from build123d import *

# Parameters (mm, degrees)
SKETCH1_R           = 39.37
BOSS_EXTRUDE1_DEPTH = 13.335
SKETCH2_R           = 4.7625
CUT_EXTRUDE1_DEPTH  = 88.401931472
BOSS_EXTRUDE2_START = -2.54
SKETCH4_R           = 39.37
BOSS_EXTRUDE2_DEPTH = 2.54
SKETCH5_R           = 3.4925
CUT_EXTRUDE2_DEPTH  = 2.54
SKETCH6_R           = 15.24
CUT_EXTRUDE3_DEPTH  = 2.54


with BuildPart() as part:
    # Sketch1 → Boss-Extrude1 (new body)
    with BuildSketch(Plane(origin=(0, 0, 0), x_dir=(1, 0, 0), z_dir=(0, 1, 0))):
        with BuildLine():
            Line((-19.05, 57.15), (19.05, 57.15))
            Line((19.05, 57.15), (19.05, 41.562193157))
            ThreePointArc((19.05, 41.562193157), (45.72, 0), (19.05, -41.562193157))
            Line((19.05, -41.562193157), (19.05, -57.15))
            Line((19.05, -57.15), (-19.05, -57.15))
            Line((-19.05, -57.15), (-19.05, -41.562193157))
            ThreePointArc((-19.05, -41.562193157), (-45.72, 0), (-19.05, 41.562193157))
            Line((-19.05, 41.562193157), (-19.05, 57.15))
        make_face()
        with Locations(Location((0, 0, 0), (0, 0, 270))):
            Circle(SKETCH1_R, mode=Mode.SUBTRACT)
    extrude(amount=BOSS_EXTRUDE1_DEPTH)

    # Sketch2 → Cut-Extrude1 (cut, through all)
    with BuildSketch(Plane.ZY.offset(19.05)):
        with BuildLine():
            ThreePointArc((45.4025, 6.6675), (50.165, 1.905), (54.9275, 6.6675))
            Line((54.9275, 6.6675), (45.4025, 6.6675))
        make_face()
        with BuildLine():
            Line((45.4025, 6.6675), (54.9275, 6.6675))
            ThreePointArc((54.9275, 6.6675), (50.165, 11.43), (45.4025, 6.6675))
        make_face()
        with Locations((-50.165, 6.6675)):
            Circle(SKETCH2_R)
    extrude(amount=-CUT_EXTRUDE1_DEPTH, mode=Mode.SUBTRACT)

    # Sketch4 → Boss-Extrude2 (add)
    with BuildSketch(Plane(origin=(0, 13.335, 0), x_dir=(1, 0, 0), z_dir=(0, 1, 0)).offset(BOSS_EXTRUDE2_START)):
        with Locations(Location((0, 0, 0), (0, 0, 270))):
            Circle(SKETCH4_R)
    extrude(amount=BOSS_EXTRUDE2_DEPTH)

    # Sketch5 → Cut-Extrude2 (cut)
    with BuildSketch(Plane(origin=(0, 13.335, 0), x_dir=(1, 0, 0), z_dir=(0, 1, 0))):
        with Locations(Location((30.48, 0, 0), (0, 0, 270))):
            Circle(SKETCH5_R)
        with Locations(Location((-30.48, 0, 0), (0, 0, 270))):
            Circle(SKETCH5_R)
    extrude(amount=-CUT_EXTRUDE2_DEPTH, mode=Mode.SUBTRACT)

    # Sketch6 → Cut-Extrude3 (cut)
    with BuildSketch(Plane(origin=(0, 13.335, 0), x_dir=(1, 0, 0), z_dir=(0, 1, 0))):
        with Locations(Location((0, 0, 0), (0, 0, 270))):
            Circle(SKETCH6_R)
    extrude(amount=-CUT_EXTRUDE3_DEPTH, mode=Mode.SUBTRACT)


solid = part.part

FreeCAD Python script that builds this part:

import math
import FreeCAD as App
import Part
import Sketcher

V = App.Vector
Q = App.Units.Quantity

doc = App.newDocument("Part")
params = doc.addObject("Spreadsheet::Sheet", "Params")
for row, (alias, value) in enumerate([
    ("sketch1_diameter", "3.1 in"),
    ("sketch1_radius", "1.8 in"),
    ("sketch1_width", "1.5 in"),
    ("pad1_length", "0.525 in"),
    ("sketch2_diameter", "0.375 in"),
    ("sketch3_diameter", "3.1 in"),
    ("pad2_length", "0.1 in"),
    ("sketch4_diameter", "0.275 in"),
    ("pocket2_length", "0.1 in"),
    ("sketch5_diameter", "1.2 in"),
    ("pocket3_length", "0.1 in"),
], start=1):
    params.set(f"A{row}", alias)
    params.set(f"B{row}", "=" + value)
    params.setAlias(f"B{row}", alias)

body = doc.addObject("PartDesign::Body", "Body")

sketch1 = doc.addObject("Sketcher::SketchObject", "Sketch")
body.addObject(sketch1)
sketch1.AttachmentSupport = (doc.XZ_Plane, [""])
sketch1.MapMode = "FlatFace"
sketch1.addGeometry(Part.LineSegment(V(19, -57, 0), V(-19, -57, 0)), False)
sketch1.addGeometry(Part.LineSegment(V(-19, -57, 0), V(-19, -42, 0)), False)
sketch1.addGeometry(Part.ArcOfCircle(Part.Circle(V(0, 0, 0), V(0, 0, 1), 46), math.radians(115), math.radians(245)), False)
sketch1.addGeometry(Part.LineSegment(V(-19, 42, 0), V(-19, 57, 0)), False)
sketch1.addGeometry(Part.LineSegment(V(-19, 57, 0), V(19, 57, 0)), False)
sketch1.addGeometry(Part.LineSegment(V(19, 57, 0), V(19, 42, 0)), False)
sketch1.addGeometry(Part.ArcOfCircle(Part.Circle(V(0, 0, 0), V(0, 0, 1), 46), math.radians(-65), math.radians(65)), False)
sketch1.addGeometry(Part.LineSegment(V(19, -42, 0), V(19, -57, 0)), False)
sketch1.addGeometry(Part.Circle(V(0, 0, 0), V(0, 0, 1), 39), False)
sketch1.addConstraint(Sketcher.Constraint("Coincident", 0, 2, 1, 1))
sketch1.addConstraint(Sketcher.Constraint("Coincident", 1, 2, 2, 2))
sketch1.addConstraint(Sketcher.Constraint("Coincident", 2, 1, 3, 1))
sketch1.addConstraint(Sketcher.Constraint("Coincident", 3, 2, 4, 1))
sketch1.addConstraint(Sketcher.Constraint("Coincident", 4, 2, 5, 1))
sketch1.addConstraint(Sketcher.Constraint("Coincident", 5, 2, 6, 2))
sketch1.addConstraint(Sketcher.Constraint("Coincident", 6, 1, 7, 1))
sketch1.addConstraint(Sketcher.Constraint("Coincident", 7, 2, 0, 1))
sketch1.addConstraint(Sketcher.Constraint("Horizontal", 0))
sketch1.addConstraint(Sketcher.Constraint("Vertical", 1))
sketch1.addConstraint(Sketcher.Constraint("Vertical", 3))
sketch1.addConstraint(Sketcher.Constraint("Horizontal", 4))
sketch1.addConstraint(Sketcher.Constraint("Vertical", 5))
sketch1.addConstraint(Sketcher.Constraint("Vertical", 7))
sketch1.addConstraint(Sketcher.Constraint("Coincident", 2, 3, -1, 1))
sketch1.addConstraint(Sketcher.Constraint("Coincident", 6, 3, -1, 1))
sketch1.addConstraint(Sketcher.Constraint("Coincident", 8, 3, -1, 1))
sketch1.addConstraint(Sketcher.Constraint("Equal", 2, 6))
sketch1.addConstraint(Sketcher.Constraint("Symmetric", 0, 2, 4, 2, -1, 1))
sketch1.addConstraint(Sketcher.Constraint("Horizontal", 2, 1, 5, 2))
sketch1.addConstraint(Sketcher.Constraint("Horizontal", 1, 2, 6, 1))
sketch1.addConstraint(Sketcher.Constraint("Diameter", 8, Q("3.1 in")))
sketch1.addConstraint(Sketcher.Constraint("Radius", 2, Q("1.8 in")))
sketch1.addConstraint(Sketcher.Constraint("DistanceX", 0, 2, 0, 1, Q("1.5 in")))
sketch1.addConstraint(Sketcher.Constraint("DistanceY", 0, 2, -1, 1, Q("2.25 in")))
sketch1.setExpression("Constraints[21]", "Params.sketch1_diameter")
sketch1.setExpression("Constraints[22]", "Params.sketch1_radius")
sketch1.setExpression("Constraints[23]", "Params.sketch1_width")
pad1 = doc.addObject("PartDesign::Pad", "Pad")
body.addObject(pad1)
pad1.Profile = sketch1
pad1.setExpression("Length", "Params.pad1_length")
pad1.Reversed = True

sketch2 = doc.addObject("Sketcher::SketchObject", "Sketch001")
body.addObject(sketch2)
sketch2.AttachmentSupport = (doc.YZ_Plane, [""])
sketch2.MapMode = "FlatFace"
sketch2.AttachmentOffset = App.Placement(V(0, 0, -0.75 * 25.4), App.Rotation())
sketch2.addGeometry(Part.Circle(V(6.7, 50.2, 0), V(0, 0, 1), 4.8), False)
sketch2.addGeometry(Part.Circle(V(6.7, -50.2, 0), V(0, 0, 1), 4.8), False)
sketch2.addConstraint(Sketcher.Constraint("Equal", 0, 1))
sketch2.addConstraint(Sketcher.Constraint("Symmetric", 0, 3, 1, 3, -1))
sketch2.addConstraint(Sketcher.Constraint("Diameter", 0, Q("0.375 in")))
sketch2.addConstraint(Sketcher.Constraint("DistanceY", 1, 3, 0, 3, Q("3.95 in")))
sketch2.addConstraint(Sketcher.Constraint("DistanceX", -1, 1, 0, 3, Q("0.2625 in")))
sketch2.setExpression("Constraints[2]", "Params.sketch2_diameter")
pocket1 = doc.addObject("PartDesign::Pocket", "Pocket")
body.addObject(pocket1)
pocket1.Profile = sketch2
pocket1.Type = "ThroughAll"
pocket1.Reversed = True

sketch3 = doc.addObject("Sketcher::SketchObject", "Sketch002")
body.addObject(sketch3)
sketch3.AttachmentSupport = (doc.XZ_Plane, [""])
sketch3.MapMode = "FlatFace"
sketch3.AttachmentOffset = App.Placement(V(0, 0, -0.425 * 25.4), App.Rotation())
sketch3.addGeometry(Part.Circle(V(0, 0, 0), V(0, 0, 1), 39), False)
sketch3.addConstraint(Sketcher.Constraint("Coincident", 0, 3, -1, 1))
sketch3.addConstraint(Sketcher.Constraint("Diameter", 0, Q("3.1 in")))
sketch3.setExpression("Constraints[1]", "Params.sketch3_diameter")
pad2 = doc.addObject("PartDesign::Pad", "Pad001")
body.addObject(pad2)
pad2.Profile = sketch3
pad2.setExpression("Length", "Params.pad2_length")
pad2.Reversed = True

sketch4 = doc.addObject("Sketcher::SketchObject", "Sketch003")
body.addObject(sketch4)
sketch4.AttachmentSupport = (doc.XZ_Plane, [""])
sketch4.MapMode = "FlatFace"
sketch4.AttachmentOffset = App.Placement(V(0, 0, -0.525 * 25.4), App.Rotation())
sketch4.addGeometry(Part.Circle(V(30.5, 0, 0), V(0, 0, 1), 3.5), False)
sketch4.addGeometry(Part.Circle(V(-30.5, 0, 0), V(0, 0, 1), 3.5), False)
sketch4.addConstraint(Sketcher.Constraint("Equal", 0, 1))
sketch4.addConstraint(Sketcher.Constraint("Symmetric", 0, 3, 1, 3, -1, 1))
sketch4.addConstraint(Sketcher.Constraint("PointOnObject", 0, 3, -1))
sketch4.addConstraint(Sketcher.Constraint("Diameter", 0, Q("0.275 in")))
sketch4.addConstraint(Sketcher.Constraint("DistanceX", -1, 1, 0, 3, Q("1.2 in")))
sketch4.setExpression("Constraints[3]", "Params.sketch4_diameter")
pocket2 = doc.addObject("PartDesign::Pocket", "Pocket001")
body.addObject(pocket2)
pocket2.Profile = sketch4
pocket2.setExpression("Length", "Params.pocket2_length")
pocket2.Reversed = True

sketch5 = doc.addObject("Sketcher::SketchObject", "Sketch004")
body.addObject(sketch5)
sketch5.AttachmentSupport = (doc.XZ_Plane, [""])
sketch5.MapMode = "FlatFace"
sketch5.AttachmentOffset = App.Placement(V(0, 0, -0.525 * 25.4), App.Rotation())
sketch5.addGeometry(Part.Circle(V(0, 0, 0), V(0, 0, 1), 15), False)
sketch5.addConstraint(Sketcher.Constraint("Coincident", 0, 3, -1, 1))
sketch5.addConstraint(Sketcher.Constraint("Diameter", 0, Q("1.2 in")))
sketch5.setExpression("Constraints[1]", "Params.sketch5_diameter")
pocket3 = doc.addObject("PartDesign::Pocket", "Pocket002")
body.addObject(pocket3)
pocket3.Profile = sketch5
pocket3.setExpression("Length", "Params.pocket3_length")
pocket3.Reversed = True

doc.recompute()
